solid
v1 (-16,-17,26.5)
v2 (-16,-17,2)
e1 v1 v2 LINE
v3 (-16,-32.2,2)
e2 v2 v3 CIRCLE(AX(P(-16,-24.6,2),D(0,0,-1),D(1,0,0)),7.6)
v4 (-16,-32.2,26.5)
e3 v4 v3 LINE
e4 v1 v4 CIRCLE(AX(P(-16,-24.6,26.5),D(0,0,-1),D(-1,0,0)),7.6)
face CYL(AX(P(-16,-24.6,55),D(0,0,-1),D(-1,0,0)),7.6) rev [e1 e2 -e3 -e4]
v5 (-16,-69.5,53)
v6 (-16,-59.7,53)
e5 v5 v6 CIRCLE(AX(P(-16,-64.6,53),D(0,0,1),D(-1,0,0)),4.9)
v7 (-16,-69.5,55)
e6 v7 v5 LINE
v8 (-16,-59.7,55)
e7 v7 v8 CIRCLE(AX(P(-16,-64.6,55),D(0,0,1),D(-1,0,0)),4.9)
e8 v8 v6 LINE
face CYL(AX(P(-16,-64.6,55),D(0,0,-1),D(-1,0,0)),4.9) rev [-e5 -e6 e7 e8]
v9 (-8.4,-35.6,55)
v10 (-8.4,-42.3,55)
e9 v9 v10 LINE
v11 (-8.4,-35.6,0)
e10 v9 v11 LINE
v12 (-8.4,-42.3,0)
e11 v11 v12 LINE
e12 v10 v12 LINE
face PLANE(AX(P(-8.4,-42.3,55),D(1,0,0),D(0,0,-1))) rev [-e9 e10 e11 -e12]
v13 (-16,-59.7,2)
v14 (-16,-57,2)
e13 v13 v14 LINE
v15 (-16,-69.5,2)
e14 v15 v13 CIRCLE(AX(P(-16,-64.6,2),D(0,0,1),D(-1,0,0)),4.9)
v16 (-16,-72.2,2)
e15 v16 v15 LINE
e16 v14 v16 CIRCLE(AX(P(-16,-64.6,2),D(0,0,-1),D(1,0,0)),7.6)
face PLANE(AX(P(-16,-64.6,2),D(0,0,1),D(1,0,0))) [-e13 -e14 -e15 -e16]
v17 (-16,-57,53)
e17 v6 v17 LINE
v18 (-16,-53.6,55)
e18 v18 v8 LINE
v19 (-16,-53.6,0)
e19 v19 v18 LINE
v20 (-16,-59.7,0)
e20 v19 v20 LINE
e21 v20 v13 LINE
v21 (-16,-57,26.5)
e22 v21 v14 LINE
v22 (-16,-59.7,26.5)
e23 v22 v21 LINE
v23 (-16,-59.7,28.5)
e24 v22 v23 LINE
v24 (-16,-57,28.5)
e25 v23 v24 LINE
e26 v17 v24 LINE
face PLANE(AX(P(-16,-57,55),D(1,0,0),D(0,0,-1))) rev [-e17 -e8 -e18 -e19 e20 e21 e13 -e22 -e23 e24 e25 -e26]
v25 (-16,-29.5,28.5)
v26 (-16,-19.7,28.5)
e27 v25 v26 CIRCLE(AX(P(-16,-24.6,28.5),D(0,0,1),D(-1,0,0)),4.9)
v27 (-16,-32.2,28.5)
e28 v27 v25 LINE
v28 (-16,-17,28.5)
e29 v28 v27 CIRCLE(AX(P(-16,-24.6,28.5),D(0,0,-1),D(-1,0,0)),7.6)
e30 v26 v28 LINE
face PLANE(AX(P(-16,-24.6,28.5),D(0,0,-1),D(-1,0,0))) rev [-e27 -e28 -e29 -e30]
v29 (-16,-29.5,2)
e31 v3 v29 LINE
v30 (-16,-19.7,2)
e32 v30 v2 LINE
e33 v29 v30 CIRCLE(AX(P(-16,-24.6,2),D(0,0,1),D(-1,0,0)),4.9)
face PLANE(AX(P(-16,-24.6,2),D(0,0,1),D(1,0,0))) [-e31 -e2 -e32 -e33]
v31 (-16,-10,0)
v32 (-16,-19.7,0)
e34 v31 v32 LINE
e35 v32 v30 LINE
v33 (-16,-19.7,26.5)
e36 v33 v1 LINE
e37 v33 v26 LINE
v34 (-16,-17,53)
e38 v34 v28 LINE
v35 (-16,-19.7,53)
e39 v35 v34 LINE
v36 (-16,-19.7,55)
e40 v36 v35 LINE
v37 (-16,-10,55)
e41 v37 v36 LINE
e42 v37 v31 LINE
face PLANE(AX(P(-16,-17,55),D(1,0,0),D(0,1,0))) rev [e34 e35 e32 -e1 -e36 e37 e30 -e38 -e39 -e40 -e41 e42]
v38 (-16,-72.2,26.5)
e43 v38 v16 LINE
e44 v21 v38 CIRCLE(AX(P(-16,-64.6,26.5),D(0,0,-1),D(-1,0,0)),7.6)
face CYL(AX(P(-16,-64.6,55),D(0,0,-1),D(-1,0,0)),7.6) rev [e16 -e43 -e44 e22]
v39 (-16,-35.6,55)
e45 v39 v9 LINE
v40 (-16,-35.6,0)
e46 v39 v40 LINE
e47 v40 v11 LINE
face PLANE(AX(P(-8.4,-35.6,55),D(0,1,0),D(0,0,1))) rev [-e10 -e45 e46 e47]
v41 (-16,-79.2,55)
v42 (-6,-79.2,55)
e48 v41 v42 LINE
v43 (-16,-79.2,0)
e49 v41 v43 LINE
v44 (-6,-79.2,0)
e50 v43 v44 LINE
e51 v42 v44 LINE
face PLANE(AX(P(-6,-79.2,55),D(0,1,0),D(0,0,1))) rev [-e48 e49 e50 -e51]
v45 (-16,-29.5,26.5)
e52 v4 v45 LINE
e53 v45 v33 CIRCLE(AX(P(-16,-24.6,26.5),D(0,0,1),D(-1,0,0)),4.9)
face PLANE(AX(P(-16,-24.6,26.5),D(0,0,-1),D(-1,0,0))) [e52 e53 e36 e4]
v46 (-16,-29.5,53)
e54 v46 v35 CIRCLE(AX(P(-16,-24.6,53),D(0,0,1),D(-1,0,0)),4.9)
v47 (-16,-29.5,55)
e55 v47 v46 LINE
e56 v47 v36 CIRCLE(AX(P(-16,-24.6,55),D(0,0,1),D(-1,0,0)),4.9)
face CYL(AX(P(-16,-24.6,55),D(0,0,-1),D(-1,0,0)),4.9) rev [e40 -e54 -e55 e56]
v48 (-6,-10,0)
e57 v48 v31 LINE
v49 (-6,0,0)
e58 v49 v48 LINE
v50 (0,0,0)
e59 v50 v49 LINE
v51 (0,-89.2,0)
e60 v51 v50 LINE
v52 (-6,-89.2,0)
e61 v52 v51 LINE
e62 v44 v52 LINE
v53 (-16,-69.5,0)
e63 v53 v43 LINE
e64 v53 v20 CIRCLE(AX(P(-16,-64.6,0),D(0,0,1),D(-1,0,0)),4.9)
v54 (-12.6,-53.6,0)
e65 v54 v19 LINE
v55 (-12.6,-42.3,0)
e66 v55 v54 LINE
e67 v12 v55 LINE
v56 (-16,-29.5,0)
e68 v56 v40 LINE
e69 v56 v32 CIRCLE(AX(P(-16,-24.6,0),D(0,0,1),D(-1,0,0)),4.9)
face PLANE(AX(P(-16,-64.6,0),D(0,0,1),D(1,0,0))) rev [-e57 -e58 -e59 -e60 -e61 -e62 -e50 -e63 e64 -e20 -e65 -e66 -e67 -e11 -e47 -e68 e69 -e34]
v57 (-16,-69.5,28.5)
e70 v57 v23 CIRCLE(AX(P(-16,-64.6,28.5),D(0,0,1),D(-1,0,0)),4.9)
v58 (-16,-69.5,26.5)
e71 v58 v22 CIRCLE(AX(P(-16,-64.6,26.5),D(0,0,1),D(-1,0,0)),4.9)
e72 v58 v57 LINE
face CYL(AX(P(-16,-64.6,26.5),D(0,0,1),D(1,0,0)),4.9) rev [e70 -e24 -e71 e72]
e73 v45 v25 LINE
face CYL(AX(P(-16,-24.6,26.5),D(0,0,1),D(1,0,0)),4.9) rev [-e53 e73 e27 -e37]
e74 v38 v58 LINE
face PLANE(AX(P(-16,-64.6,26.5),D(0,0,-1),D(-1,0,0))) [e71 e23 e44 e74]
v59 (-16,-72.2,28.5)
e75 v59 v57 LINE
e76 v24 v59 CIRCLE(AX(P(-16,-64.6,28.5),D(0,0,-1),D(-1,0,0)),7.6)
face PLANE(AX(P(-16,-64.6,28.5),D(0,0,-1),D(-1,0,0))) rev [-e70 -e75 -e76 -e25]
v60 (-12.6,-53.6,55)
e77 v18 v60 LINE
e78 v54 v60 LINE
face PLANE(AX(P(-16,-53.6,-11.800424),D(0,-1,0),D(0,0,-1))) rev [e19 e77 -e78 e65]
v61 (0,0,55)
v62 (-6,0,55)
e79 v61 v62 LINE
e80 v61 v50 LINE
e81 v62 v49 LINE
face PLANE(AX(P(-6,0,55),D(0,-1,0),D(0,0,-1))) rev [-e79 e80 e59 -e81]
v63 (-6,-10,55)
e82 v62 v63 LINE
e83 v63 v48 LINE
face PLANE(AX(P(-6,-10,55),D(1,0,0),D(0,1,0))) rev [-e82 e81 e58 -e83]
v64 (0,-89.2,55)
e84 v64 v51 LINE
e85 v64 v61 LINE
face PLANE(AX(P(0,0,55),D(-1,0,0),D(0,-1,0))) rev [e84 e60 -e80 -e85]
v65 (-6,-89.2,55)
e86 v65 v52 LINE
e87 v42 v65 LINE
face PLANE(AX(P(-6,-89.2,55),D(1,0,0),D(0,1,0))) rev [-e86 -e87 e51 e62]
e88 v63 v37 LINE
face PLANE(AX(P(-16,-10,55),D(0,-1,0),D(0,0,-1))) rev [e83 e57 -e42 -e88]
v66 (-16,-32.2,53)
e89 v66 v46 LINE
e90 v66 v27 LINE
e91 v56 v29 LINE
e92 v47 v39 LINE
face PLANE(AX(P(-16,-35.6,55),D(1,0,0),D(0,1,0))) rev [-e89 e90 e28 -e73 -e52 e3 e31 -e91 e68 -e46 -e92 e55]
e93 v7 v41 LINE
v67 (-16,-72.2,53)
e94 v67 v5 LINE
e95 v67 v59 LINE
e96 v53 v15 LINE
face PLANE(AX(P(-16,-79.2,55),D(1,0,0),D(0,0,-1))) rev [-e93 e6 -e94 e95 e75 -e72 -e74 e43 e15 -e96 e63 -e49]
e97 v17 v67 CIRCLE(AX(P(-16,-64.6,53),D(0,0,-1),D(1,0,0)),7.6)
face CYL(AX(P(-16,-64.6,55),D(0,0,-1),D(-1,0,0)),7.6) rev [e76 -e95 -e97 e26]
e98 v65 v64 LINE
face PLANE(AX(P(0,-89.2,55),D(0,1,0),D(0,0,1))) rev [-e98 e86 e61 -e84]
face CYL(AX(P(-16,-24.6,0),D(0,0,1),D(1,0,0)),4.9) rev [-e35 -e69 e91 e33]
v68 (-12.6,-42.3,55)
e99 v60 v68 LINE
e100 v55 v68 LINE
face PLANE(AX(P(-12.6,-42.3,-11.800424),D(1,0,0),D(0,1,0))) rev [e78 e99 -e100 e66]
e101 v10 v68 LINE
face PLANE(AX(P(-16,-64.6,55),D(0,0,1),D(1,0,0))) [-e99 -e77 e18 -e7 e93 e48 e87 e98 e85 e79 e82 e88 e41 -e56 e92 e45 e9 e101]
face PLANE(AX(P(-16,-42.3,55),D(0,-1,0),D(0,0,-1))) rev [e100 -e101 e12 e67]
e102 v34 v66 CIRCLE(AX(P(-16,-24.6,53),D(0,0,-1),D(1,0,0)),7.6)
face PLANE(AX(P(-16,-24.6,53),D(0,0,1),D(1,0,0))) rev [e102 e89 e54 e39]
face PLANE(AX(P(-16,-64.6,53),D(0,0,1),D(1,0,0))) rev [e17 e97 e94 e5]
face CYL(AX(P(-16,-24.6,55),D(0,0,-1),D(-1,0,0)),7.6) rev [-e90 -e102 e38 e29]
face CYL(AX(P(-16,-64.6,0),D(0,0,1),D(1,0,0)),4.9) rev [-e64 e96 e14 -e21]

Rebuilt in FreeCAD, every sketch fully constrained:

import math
import FreeCAD as App
import Part
import Sketcher

V = App.Vector
Q = App.Units.Quantity


def add_polygon(sketch, points):
    """Adds a closed chain of lines whose ends are joined by coincident constraints."""
    first, n = sketch.GeometryCount, len(points)
    for a, b in zip(points, points[1:] + points[:1]):
        sketch.addGeometry(Part.LineSegment(App.Vector(*a, 0), App.Vector(*b, 0)), False)
    for i in range(n):
        sketch.addConstraint(Sketcher.Constraint("Coincident", first + i, 2, first + (i + 1) % n, 1))

doc = App.newDocument("Part")
body = doc.addObject("PartDesign::Body", "Body")

# Sketch on XY plane
sketch1 = body.newObject("Sketcher::SketchObject", "Sketch")
sketch1.AttachmentSupport = (doc.getObject("XY_Plane"), [""])
sketch1.MapMode = "FlatFace"
sketch1.addGeometry([
    Part.LineSegment(V(0, -89.2, 0), V(0, 0, 0)),  # 0
    Part.LineSegment(V(0, 0, 0), V(-6, 0, 0)),  # 1
    Part.LineSegment(V(-6, 0, 0), V(-6, -10, 0)),  # 2
    Part.LineSegment(V(-6, -10, 0), V(-16, -10, 0)),  # 3
    Part.LineSegment(V(-16, -10, 0), V(-16, -17, 0)),  # 4
    Part.ArcOfCircle(Part.Circle(V(-16, -24.6, 0), V(0, 0, 1), 7.6), math.radians(-90), math.radians(90)),  # 5
    Part.LineSegment(V(-16, -32.2, 0), V(-16, -35.6, 0)),  # 6
    Part.LineSegment(V(-16, -35.6, 0), V(-8.4, -35.6, 0)),  # 7
    Part.LineSegment(V(-8.4, -35.6, 0), V(-8.4, -42.3, 0)),  # 8
    Part.LineSegment(V(-8.4, -42.3, 0), V(-16, -42.3, 0)),  # 9
    Part.LineSegment(V(-16, -42.3, 0), V(-16, -57, 0)),  # 10
    Part.ArcOfCircle(Part.Circle(V(-16, -64.6, 0), V(0, 0, 1), 7.6), math.radians(-90), math.radians(90)),  # 11
    Part.LineSegment(V(-16, -72.2, 0), V(-16, -79.2, 0)),  # 12
    Part.LineSegment(V(-16, -79.2, 0), V(-6, -79.2, 0)),  # 13
    Part.LineSegment(V(-6, -79.2, 0), V(-6, -89.2, 0)),  # 14
    Part.LineSegment(V(-6, -89.2, 0), V(0, -89.2, 0)),  # 15
], False)
sketch1.addConstraint([
    Sketcher.Constraint("Coincident", 0, 2, 1, 1),
    Sketcher.Constraint("Coincident", 1, 2, 2, 1),
    Sketcher.Constraint("Coincident", 2, 2, 3, 1),
    Sketcher.Constraint("Coincident", 3, 2, 4, 1),
    Sketcher.Constraint("Coincident", 4, 2, 5, 2),
    Sketcher.Constraint("Coincident", 5, 1, 6, 1),
    Sketcher.Constraint("Coincident", 6, 2, 7, 1),
    Sketcher.Constraint("Coincident", 7, 2, 8, 1),
    Sketcher.Constraint("Coincident", 8, 2, 9, 1),
    Sketcher.Constraint("Coincident", 9, 2, 10, 1),
    Sketcher.Constraint("Coincident", 10, 2, 11, 2),
    Sketcher.Constraint("Coincident", 11, 1, 12, 1),
    Sketcher.Constraint("Coincident", 12, 2, 13, 1),
    Sketcher.Constraint("Coincident", 13, 2, 14, 1),
    Sketcher.Constraint("Coincident", 14, 2, 15, 1),
    Sketcher.Constraint("Coincident", 15, 2, 0, 1),
    Sketcher.Constraint("Vertical", 0),
    Sketcher.Constraint("Horizontal", 1),
    Sketcher.Constraint("Vertical", 2),
    Sketcher.Constraint("Horizontal", 3),
    Sketcher.Constraint("Vertical", 4),
    Sketcher.Constraint("Vertical", 6),
    Sketcher.Constraint("Horizontal", 7),
    Sketcher.Constraint("Vertical", 8),
    Sketcher.Constraint("Horizontal", 9),
    Sketcher.Constraint("Vertical", 10),
    Sketcher.Constraint("Vertical", 12),
    Sketcher.Constraint("Horizontal", 13),
    Sketcher.Constraint("Vertical", 14),
    Sketcher.Constraint("Horizontal", 15),
    Sketcher.Constraint("Coincident", 0, 2, -1, 1),
    Sketcher.Constraint("Equal", 5, 11),
    Sketcher.Constraint("Vertical", 5, 3, 11, 3),
    Sketcher.Constraint("Vertical", 11, 3, 3, 2),
    Sketcher.Constraint("Vertical", 4, 2, 5, 1),
    Sketcher.Constraint("Vertical", 6, 2, 9, 2),
    Sketcher.Constraint("Vertical", 10, 2, 11, 1),
    Sketcher.Constraint("Vertical", 2, 2, 13, 2),
    Sketcher.Constraint("Equal", 13, 2),
    Sketcher.Constraint("Equal", 4, 12),
    Sketcher.Constraint("Equal", 2, 14),
    Sketcher.Constraint("Radius", 5, Q("7.6 mm")),
    Sketcher.Constraint("DistanceX", 1, 2, 1, 1, Q("6 mm")),
    Sketcher.Constraint("DistanceX", 3, 2, 3, 1, Q("10 mm")),
    Sketcher.Constraint("DistanceY", 4, 2, 4, 1, Q("7 mm")),
    Sketcher.Constraint("DistanceX", 7, 1, 7, 2, Q("7.6 mm")),
    Sketcher.Constraint("DistanceY", 0, 1, 0, 2, Q("89.2 mm")),
    Sketcher.Constraint("DistanceY", 6, 2, 6, 1, Q("3.4 mm")),
    Sketcher.Constraint("DistanceY", 8, 2, 8, 1, Q("6.7 mm")),
])
pad1 = body.newObject("PartDesign::Pad", "Pad")
pad1.Profile = sketch1
pad1.Length = 55

# Sketch on XY plane
sketch2 = body.newObject("Sketcher::SketchObject", "Sketch001")
sketch2.AttachmentSupport = (doc.getObject("XY_Plane"), [""])
sketch2.MapMode = "FlatFace"
sketch2.AttachmentOffset = App.Placement(V(0, 0, 26.5), App.Rotation())
sketch2.addGeometry([
    Part.LineSegment(V(-16, -32.2, 0), V(-16, -29.5, 0)),
    Part.ArcOfCircle(Part.Circle(V(-16, -24.6, 0), V(0, 0, 1), 4.9), math.radians(-90), math.radians(90)),
    Part.LineSegment(V(-16, -19.7, 0), V(-16, -17, 0)),
    Part.ArcOfCircle(Part.Circle(V(-16, -24.6, 0), V(0, 0, 1), 7.6), math.radians(-90), math.radians(90)),
], False)
sketch2.addConstraint([
    Sketcher.Constraint("Coincident", 0, 2, 1, 1),
    Sketcher.Constraint("Coincident", 1, 2, 2, 1),
    Sketcher.Constraint("Coincident", 2, 2, 3, 2),
    Sketcher.Constraint("Coincident", 3, 1, 0, 1),
    Sketcher.Constraint("Vertical", 0),
    Sketcher.Constraint("Vertical", 2),
    Sketcher.Constraint("Coincident", 3, 3, 1, 3),
    Sketcher.Constraint("Vertical", 3, 3, 0, 2),
    Sketcher.Constraint("Vertical", 0, 2, 1, 2),
    Sketcher.Constraint("Radius", 1, Q("4.9 mm")),
    Sketcher.Constraint("Radius", 3, Q("7.6 mm")),
    Sketcher.Constraint("DistanceX", 1, 3, -1, 1, Q("16 mm")),
    Sketcher.Constraint("DistanceY", 2, 2, -1, 1, Q("17 mm")),
])
pad2 = body.newObject("PartDesign::Pad", "Pad001")
pad2.Profile = sketch2
pad2.Length = 2

# Sketch on XY plane
sketch3 = body.newObject("Sketcher::SketchObject", "Sketch002")
sketch3.AttachmentSupport = (doc.getObject("XY_Plane"), [""])
sketch3.MapMode = "FlatFace"
sketch3.AttachmentOffset = App.Placement(V(0, 0, 26.5), App.Rotation())
sketch3.addGeometry([
    Part.LineSegment(V(-16, -72.2, 0), V(-16, -69.5, 0)),
    Part.ArcOfCircle(Part.Circle(V(-16, -64.6, 0), V(0, 0, 1), 4.9), math.radians(-90), math.radians(90)),
    Part.LineSegment(V(-16, -59.7, 0), V(-16, -57, 0)),
    Part.ArcOfCircle(Part.Circle(V(-16, -64.6, 0), V(0, 0, 1), 7.6), math.radians(-90), math.radians(90)),
], False)
sketch3.addConstraint([
    Sketcher.Constraint("Coincident", 0, 2, 1, 1),
    Sketcher.Constraint("Coincident", 1, 2, 2, 1),
    Sketcher.Constraint("Coincident", 2, 2, 3, 2),
    Sketcher.Constraint("Coincident", 3, 1, 0, 1),
    Sketcher.Constraint("Vertical", 0),
    Sketcher.Constraint("Vertical", 2),
    Sketcher.Constraint("Coincident", 3, 3, 1, 3),
    Sketcher.Constraint("Vertical", 3, 3, 0, 2),
    Sketcher.Constraint("Vertical", 0, 2, 1, 2),
    Sketcher.Constraint("Radius", 1, Q("4.9 mm")),
    Sketcher.Constraint("Radius", 3, Q("7.6 mm")),
    Sketcher.Constraint("DistanceX", 1, 3, -1, 1, Q("16 mm")),
    Sketcher.Constraint("DistanceY", 2, 2, -1, 1, Q("57 mm")),
])
pad3 = body.newObject("PartDesign::Pad", "Pad002")
pad3.Profile = sketch3
pad3.Length = 2

# Sketch on XY plane
sketch4 = body.newObject("Sketcher::SketchObject", "Sketch003")
sketch4.AttachmentSupport = (doc.getObject("XY_Plane"), [""])
sketch4.MapMode = "FlatFace"
sketch4.addGeometry([
    Part.LineSegment(V(-16, -59.7, 0), V(-16, -57, 0)),  # 0
    Part.ArcOfCircle(Part.Circle(V(-16, -64.6, 0), V(0, 0, 1), 7.6), math.radians(-90), math.radians(90)),  # 1
    Part.LineSegment(V(-16, -72.2, 0), V(-16, -69.5, 0)),  # 2
    Part.ArcOfCircle(Part.Circle(V(-16, -64.6, 0), V(0, 0, 1), 4.9), math.radians(-90), math.radians(90)),  # 3
    Part.LineSegment(V(-16, -19.7, 0), V(-16, -17, 0)),  # 4
    Part.ArcOfCircle(Part.Circle(V(-16, -24.6, 0), V(0, 0, 1), 7.6), math.radians(-90), math.radians(90)),  # 5
    Part.LineSegment(V(-16, -32.2, 0), V(-16, -29.5, 0)),  # 6
    Part.ArcOfCircle(Part.Circle(V(-16, -24.6, 0), V(0, 0, 1), 4.9), math.radians(-90), math.radians(90)),  # 7
], False)
sketch4.addConstraint([
    Sketcher.Constraint("Coincident", 0, 2, 1, 2),
    Sketcher.Constraint("Coincident", 1, 1, 2, 1),
    Sketcher.Constraint("Coincident", 2, 2, 3, 1),
    Sketcher.Constraint("Coincident", 3, 2, 0, 1),
    Sketcher.Constraint("Coincident", 4, 2, 5, 2),
    Sketcher.Constraint("Coincident", 5, 1, 6, 1),
    Sketcher.Constraint("Coincident", 6, 2, 7, 1),
    Sketcher.Constraint("Coincident", 7, 2, 4, 1),
    Sketcher.Constraint("Vertical", 0),
    Sketcher.Constraint("Vertical", 2),
    Sketcher.Constraint("Vertical", 4),
    Sketcher.Constraint("Vertical", 6),
    Sketcher.Constraint("Coincident", 3, 3, 1, 3),
    Sketcher.Constraint("Coincident", 7, 3, 5, 3),
    Sketcher.Constraint("Equal", 1, 5),
    Sketcher.Constraint("Equal", 3, 7),
    Sketcher.Constraint("Vertical", 3, 3, 5, 3),
    Sketcher.Constraint("Vertical", 7, 3, 0, 2),
    Sketcher.Constraint("Vertical", 0, 2, 1, 1),
    Sketcher.Constraint("Vertical", 3, 2, 4, 2),
    Sketcher.Constraint("Vertical", 4, 2, 5, 1),
    Sketcher.Constraint("Radius", 1, Q("7.6 mm")),
    Sketcher.Constraint("Radius", 3, Q("4.9 mm")),
    Sketcher.Constraint("DistanceX", 1, 3, -1, 1, Q("16 mm")),
    Sketcher.Constraint("DistanceY", 0, 2, -1, 1, Q("57 mm")),
    Sketcher.Constraint("DistanceY", 4, 2, -1, 1, Q("17 mm")),
])
pad4 = body.newObject("PartDesign::Pad", "Pad003")
pad4.Profile = sketch4
pad4.Length = 2

# Sketch on XY plane
sketch5 = body.newObject("Sketcher::SketchObject", "Sketch004")
sketch5.AttachmentSupport = (doc.getObject("XY_Plane"), [""])
sketch5.MapMode = "FlatFace"
sketch5.AttachmentOffset = App.Placement(V(0, 0, 53), App.Rotation())
sketch5.addGeometry([
    Part.LineSegment(V(-16, -19.7, 0), V(-16, -17, 0)),  # 0
    Part.ArcOfCircle(Part.Circle(V(-16, -24.6, 0), V(0, 0, 1), 7.6), math.radians(-90), math.radians(90)),  # 1
    Part.LineSegment(V(-16, -32.2, 0), V(-16, -29.5, 0)),  # 2
    Part.ArcOfCircle(Part.Circle(V(-16, -24.6, 0), V(0, 0, 1), 4.9), math.radians(-90), math.radians(90)),  # 3
    Part.LineSegment(V(-16, -59.7, 0), V(-16, -57, 0)),  # 4
    Part.ArcOfCircle(Part.Circle(V(-16, -64.6, 0), V(0, 0, 1), 7.6), math.radians(-90), math.radians(90)),  # 5
    Part.LineSegment(V(-16, -72.2, 0), V(-16, -69.5, 0)),  # 6
    Part.ArcOfCircle(Part.Circle(V(-16, -64.6, 0), V(0, 0, 1), 4.9), math.radians(-90), math.radians(90)),  # 7
], False)
sketch5.addConstraint([
    Sketcher.Constraint("Coincident", 0, 2, 1, 2),
    Sketcher.Constraint("Coincident", 1, 1, 2, 1),
    Sketcher.Constraint("Coincident", 2, 2, 3, 1),
    Sketcher.Constraint("Coincident", 3, 2, 0, 1),
    Sketcher.Constraint("Coincident", 4, 2, 5, 2),
    Sketcher.Constraint("Coincident", 5, 1, 6, 1),
    Sketcher.Constraint("Coincident", 6, 2, 7, 1),
    Sketcher.Constraint("Coincident", 7, 2, 4, 1),
    Sketcher.Constraint("Vertical", 0),
    Sketcher.Constraint("Vertical", 2),
    Sketcher.Constraint("Vertical", 4),
    Sketcher.Constraint("Vertical", 6),
    Sketcher.Constraint("Coincident", 3, 3, 1, 3),
    Sketcher.Constraint("Coincident", 7, 3, 5, 3),
    Sketcher.Constraint("Equal", 1, 5),
    Sketcher.Constraint("Equal", 3, 7),
    Sketcher.Constraint("Vertical", 3, 3, 5, 3),
    Sketcher.Constraint("Vertical", 7, 3, 0, 2),
    Sketcher.Constraint("Vertical", 0, 2, 1, 1),
    Sketcher.Constraint("Vertical", 3, 2, 4, 2),
    Sketcher.Constraint("Vertical", 4, 2, 5, 1),
    Sketcher.Constraint("Radius", 1, Q("7.6 mm")),
    Sketcher.Constraint("Radius", 3, Q("4.9 mm")),
    Sketcher.Constraint("DistanceX", 1, 3, -1, 1, Q("16 mm")),
    Sketcher.Constraint("DistanceY", 0, 2, -1, 1, Q("17 mm")),
    Sketcher.Constraint("DistanceY", 4, 2, -1, 1, Q("57 mm")),
])
pad5 = body.newObject("PartDesign::Pad", "Pad004")
pad5.Profile = sketch5
pad5.Length = 2

# Sketch on XY plane
sketch6 = body.newObject("Sketcher::SketchObject", "Sketch005")
sketch6.AttachmentSupport = (doc.getObject("XY_Plane"), [""])
sketch6.MapMode = "FlatFace"
sketch6.AttachmentOffset = App.Placement(V(0, 0, 55), App.Rotation())
add_polygon(sketch6, [(-16, -42.3), (-16, -53.6), (-12.6, -53.6), (-12.6, -42.3)])  # lines 0-3
sketch6.addConstraint([
    Sketcher.Constraint("Vertical", 0),
    Sketcher.Constraint("Horizontal", 1),
    Sketcher.Constraint("Vertical", 2),
    Sketcher.Constraint("Horizontal", 3),
    Sketcher.Constraint("DistanceX", 1, 1, 1, 2, Q("3.4 mm")),
    Sketcher.Constraint("DistanceY", 0, 2, 0, 1, Q("11.3 mm")),
    Sketcher.Constraint("DistanceX", 0, 2, -1, 1, Q("16 mm")),
    Sketcher.Constraint("DistanceY", 0, 2, -1, 1, Q("53.6 mm")),
])
pocket1 = body.newObject("PartDesign::Pocket", "Pocket")
pocket1.Profile = sketch6
pocket1.Length = 55

doc.recompute()
